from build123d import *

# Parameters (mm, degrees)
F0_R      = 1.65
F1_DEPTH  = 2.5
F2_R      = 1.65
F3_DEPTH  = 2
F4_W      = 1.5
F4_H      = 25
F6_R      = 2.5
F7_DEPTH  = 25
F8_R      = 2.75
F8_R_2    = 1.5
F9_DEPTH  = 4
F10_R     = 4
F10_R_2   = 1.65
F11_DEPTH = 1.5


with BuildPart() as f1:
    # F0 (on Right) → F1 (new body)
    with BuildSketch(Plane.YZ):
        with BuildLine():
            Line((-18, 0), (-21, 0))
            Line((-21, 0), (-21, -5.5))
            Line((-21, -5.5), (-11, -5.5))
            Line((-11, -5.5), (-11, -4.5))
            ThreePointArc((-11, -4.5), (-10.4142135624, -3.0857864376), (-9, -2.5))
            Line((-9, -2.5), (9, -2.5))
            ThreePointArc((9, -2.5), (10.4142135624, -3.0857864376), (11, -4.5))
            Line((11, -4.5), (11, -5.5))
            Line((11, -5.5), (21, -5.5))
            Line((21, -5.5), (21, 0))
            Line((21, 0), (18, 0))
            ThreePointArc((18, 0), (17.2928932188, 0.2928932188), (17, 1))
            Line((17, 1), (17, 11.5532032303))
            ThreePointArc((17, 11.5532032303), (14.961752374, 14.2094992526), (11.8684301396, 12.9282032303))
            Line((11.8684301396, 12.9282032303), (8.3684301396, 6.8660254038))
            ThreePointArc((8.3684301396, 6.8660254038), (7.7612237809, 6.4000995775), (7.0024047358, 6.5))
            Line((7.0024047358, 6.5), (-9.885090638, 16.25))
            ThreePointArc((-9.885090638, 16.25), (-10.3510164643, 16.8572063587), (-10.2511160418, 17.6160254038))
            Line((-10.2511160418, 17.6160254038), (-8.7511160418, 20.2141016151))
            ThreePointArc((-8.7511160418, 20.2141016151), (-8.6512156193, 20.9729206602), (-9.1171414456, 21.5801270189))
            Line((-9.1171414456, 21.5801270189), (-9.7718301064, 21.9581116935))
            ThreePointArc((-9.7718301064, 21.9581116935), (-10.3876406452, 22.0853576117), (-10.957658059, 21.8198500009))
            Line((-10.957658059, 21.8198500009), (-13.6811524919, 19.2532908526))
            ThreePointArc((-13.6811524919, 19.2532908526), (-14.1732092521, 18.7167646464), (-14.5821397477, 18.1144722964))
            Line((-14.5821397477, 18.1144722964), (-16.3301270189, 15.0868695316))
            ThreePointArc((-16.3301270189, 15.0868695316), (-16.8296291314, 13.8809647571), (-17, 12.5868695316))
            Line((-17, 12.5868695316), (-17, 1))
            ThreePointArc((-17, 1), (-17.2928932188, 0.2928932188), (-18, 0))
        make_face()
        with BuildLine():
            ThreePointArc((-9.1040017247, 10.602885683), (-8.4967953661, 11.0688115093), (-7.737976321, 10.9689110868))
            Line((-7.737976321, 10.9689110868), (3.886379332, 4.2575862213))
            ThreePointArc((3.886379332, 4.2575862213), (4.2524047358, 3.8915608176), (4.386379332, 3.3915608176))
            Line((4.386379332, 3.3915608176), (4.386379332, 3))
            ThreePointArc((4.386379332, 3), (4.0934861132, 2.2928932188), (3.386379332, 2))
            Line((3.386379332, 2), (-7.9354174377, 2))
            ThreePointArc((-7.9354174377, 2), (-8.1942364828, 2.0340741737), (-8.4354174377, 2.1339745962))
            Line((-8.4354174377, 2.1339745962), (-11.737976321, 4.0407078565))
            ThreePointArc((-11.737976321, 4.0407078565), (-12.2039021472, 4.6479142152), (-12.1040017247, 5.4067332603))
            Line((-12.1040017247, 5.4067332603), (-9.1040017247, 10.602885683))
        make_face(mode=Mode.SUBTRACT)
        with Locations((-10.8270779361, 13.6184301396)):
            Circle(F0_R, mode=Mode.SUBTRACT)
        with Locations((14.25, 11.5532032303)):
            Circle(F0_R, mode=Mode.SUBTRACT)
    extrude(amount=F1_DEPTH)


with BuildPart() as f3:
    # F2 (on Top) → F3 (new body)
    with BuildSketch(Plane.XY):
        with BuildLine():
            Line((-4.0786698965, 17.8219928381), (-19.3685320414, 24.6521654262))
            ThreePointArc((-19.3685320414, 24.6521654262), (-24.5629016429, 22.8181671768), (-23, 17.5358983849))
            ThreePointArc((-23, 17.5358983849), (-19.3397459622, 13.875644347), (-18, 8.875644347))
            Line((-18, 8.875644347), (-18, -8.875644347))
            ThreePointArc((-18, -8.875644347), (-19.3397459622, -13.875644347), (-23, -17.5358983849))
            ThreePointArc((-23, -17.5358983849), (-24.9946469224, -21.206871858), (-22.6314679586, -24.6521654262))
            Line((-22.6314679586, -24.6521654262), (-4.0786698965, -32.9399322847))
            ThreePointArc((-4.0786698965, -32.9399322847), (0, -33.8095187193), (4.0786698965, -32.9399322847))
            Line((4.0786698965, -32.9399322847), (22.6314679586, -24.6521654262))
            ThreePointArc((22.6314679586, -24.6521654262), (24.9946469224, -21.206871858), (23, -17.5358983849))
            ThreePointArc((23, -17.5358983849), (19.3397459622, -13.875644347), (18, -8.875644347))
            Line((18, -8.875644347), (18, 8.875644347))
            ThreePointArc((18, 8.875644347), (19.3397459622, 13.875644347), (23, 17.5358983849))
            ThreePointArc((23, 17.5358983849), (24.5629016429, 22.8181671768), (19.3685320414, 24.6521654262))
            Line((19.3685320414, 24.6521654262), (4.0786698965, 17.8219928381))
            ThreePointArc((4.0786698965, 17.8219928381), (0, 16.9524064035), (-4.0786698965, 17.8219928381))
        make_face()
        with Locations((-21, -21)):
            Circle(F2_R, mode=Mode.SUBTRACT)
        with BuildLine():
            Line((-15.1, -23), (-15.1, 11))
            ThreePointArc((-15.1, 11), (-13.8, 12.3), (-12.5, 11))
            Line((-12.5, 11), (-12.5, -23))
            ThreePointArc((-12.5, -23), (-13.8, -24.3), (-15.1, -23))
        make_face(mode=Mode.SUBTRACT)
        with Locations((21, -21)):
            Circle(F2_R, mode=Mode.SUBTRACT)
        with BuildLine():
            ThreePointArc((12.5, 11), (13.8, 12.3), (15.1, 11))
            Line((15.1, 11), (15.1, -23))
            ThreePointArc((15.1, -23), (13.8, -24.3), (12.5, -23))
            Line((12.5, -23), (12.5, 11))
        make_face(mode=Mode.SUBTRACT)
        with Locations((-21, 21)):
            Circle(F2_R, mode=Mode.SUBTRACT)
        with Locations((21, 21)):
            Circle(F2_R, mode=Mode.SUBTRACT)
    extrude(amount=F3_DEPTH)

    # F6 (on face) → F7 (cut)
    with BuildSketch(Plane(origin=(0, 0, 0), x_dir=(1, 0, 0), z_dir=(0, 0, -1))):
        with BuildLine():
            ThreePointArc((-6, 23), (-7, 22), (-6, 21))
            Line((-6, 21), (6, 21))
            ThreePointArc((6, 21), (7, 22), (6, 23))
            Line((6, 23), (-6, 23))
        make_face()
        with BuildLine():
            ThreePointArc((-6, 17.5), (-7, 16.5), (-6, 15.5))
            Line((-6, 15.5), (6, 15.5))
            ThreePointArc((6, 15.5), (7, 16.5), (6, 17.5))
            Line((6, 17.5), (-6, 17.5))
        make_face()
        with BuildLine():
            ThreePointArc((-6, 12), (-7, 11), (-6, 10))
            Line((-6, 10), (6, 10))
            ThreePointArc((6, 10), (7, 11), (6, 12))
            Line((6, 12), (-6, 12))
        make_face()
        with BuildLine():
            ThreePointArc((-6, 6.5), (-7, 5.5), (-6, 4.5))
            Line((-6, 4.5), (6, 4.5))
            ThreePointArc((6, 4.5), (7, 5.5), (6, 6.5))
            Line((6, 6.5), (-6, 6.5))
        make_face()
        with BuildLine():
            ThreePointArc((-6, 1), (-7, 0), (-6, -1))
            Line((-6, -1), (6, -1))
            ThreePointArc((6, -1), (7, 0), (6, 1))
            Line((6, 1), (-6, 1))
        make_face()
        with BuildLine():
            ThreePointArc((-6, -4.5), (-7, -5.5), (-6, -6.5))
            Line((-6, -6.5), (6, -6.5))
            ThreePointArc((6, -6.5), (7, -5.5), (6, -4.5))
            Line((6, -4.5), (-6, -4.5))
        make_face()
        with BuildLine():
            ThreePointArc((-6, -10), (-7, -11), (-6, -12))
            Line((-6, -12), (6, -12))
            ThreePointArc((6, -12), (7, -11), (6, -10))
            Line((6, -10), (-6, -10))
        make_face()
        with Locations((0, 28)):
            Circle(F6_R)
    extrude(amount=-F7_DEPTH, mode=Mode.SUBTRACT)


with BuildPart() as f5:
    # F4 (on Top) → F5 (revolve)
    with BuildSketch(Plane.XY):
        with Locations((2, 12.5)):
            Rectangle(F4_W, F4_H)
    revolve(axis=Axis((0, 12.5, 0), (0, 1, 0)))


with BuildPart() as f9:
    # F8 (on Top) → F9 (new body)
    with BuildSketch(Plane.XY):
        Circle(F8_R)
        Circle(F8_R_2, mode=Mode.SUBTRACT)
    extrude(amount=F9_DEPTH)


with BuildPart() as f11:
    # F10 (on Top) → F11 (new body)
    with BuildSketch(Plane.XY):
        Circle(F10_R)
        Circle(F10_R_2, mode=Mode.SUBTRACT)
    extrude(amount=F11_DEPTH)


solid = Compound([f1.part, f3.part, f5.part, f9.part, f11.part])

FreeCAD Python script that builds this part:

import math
import FreeCAD as App
import Part
import Sketcher
from FreeCAD import Vector
Q = App.Units.Quantity


def add_polygon(sketch, points):
    """Adds a closed chain of lines whose ends are joined by coincident constraints."""
    first, n = sketch.GeometryCount, len(points)
    for a, b in zip(points, points[1:] + points[:1]):
        sketch.addGeometry(Part.LineSegment(App.Vector(*a, 0), App.Vector(*b, 0)), False)
    for i in range(n):
        sketch.addConstraint(Sketcher.Constraint("Coincident", first + i, 2, first + (i + 1) % n, 1))

doc = App.newDocument("Part")
body = doc.addObject("PartDesign::Body", "Body")

# Sketch on YZ plane
sketch1 = doc.addObject("Sketcher::SketchObject", "Sketch")
body.addObject(sketch1)
sketch1.AttachmentSupport = (doc.YZ_Plane, [""])
sketch1.MapMode = "FlatFace"
sketch1.addGeometry(Part.LineSegment(Vector(-18, 0, 0), Vector(-21, 0, 0)), False)
sketch1.addGeometry(Part.LineSegment(Vector(-21, 0, 0), Vector(-21, -5.5, 0)), False)
sketch1.addGeometry(Part.LineSegment(Vector(-21, -5.5, 0), Vector(-11, -5.5, 0)), False)
sketch1.addGeometry(Part.LineSegment(Vector(-11, -5.5, 0), Vector(-11, -4.5, 0)), False)
sketch1.addGeometry(Part.ArcOfCircle(Part.Circle(Vector(-9, -4.5, 0), Vector(0, 0, 1), 2), math.radians(90), math.radians(180)), False)
sketch1.addGeometry(Part.LineSegment(Vector(-9, -2.5, 0), Vector(9, -2.5, 0)), False)
sketch1.addGeometry(Part.ArcOfCircle(Part.Circle(Vector(9, -4.5, 0), Vector(0, 0, 1), 2), math.radians(0), math.radians(90)), False)
sketch1.addGeometry(Part.LineSegment(Vector(11, -4.5, 0), Vector(11, -5.5, 0)), False)
sketch1.addGeometry(Part.LineSegment(Vector(11, -5.5, 0), Vector(21, -5.5, 0)), False)
sketch1.addGeometry(Part.LineSegment(Vector(21, -5.5, 0), Vector(21, 0, 0)), False)
sketch1.addGeometry(Part.LineSegment(Vector(21, 0, 0), Vector(18, 0, 0)), False)
sketch1.addGeometry(Part.ArcOfCircle(Part.Circle(Vector(18, 1, 0), Vector(0, 0, 1), 1), math.radians(180), math.radians(270)), False)
sketch1.addGeometry(Part.LineSegment(Vector(17, 1, 0), Vector(17, 11.553203, 0)), False)
sketch1.addGeometry(Part.ArcOfCircle(Part.Circle(Vector(14.25, 11.553203, 0), Vector(0, 0, 1), 2.75), math.radians(0), math.radians(150)), False)
sketch1.addGeometry(Part.LineSegment(Vector(11.86843, 12.928203, 0), Vector(8.36843, 6.866025, 0)), False)
sketch1.addGeometry(Part.ArcOfCircle(Part.Circle(Vector(7.502405, 7.366025, 0), Vector(0, 0, 1), 1), math.radians(-120), math.radians(-30)), False)
sketch1.addGeometry(Part.LineSegment(Vector(7.002405, 6.5, 0), Vector(-9.885091, 16.25, 0)), False)
sketch1.addGeometry(Part.ArcOfCircle(Part.Circle(Vector(-9.385091, 17.116025, 0), Vector(0, 0, 1), 1), math.radians(150), math.radians(240)), False)
sketch1.addGeometry(Part.LineSegment(Vector(-10.251116, 17.616025, 0), Vector(-8.751116, 20.214102, 0)), False)
sketch1.addGeometry(Part.ArcOfCircle(Part.Circle(Vector(-9.617141, 20.714102, 0), Vector(0, 0, 1), 1), math.radians(-30), math.radians(60)), False)
sketch1.addGeometry(Part.LineSegment(Vector(-9.117141, 21.580127, 0), Vector(-9.77183, 21.958112, 0)), False)
sketch1.addGeometry(Part.ArcOfCircle(Part.Circle(Vector(-10.27183, 21.092086, 0), Vector(0, 0, 1), 1), math.radians(60), math.radians(133.300756)), False)
sketch1.addGeometry(Part.LineSegment(Vector(-10.957658, 21.81985, 0), Vector(-13.681152, 19.253291, 0)), False)
sketch1.addGeometry(Part.ArcOfCircle(Part.Circle(Vector(-10.252013, 15.614472, 0), Vector(0, 0, 1), 5), math.radians(133.300756), math.radians(150)), False)
sketch1.addGeometry(Part.LineSegment(Vector(-14.58214, 18.114472, 0), Vector(-16.330127, 15.08687, 0)), False)
sketch1.addGeometry(Part.ArcOfCircle(Part.Circle(Vector(-12, 12.58687, 0), Vector(0, 0, 1), 5), math.radians(150), math.radians(180)), False)
sketch1.addGeometry(Part.LineSegment(Vector(-17, 12.58687, 0), Vector(-17, 1, 0)), False)
sketch1.addGeometry(Part.ArcOfCircle(Part.Circle(Vector(-18, 1, 0), Vector(0, 0, 1), 1), math.radians(-90), math.radians(0)), False)
sketch1.addGeometry(Part.LineSegment(Vector(-12.104002, 5.406733, 0), Vector(-9.104002, 10.602886, 0)), False)
sketch1.addGeometry(Part.ArcOfCircle(Part.Circle(Vector(-8.237976, 10.102886, 0), Vector(0, 0, 1), 1), math.radians(60), math.radians(150)), False)
sketch1.addGeometry(Part.LineSegment(Vector(-7.737976, 10.968911, 0), Vector(3.886379, 4.257586, 0)), False)
sketch1.addGeometry(Part.ArcOfCircle(Part.Circle(Vector(3.386379, 3.391561, 0), Vector(0, 0, 1), 1), math.radians(0), math.radians(60)), False)
sketch1.addGeometry(Part.LineSegment(Vector(4.386379, 3.391561, 0), Vector(4.386379, 3, 0)), False)
sketch1.addGeometry(Part.ArcOfCircle(Part.Circle(Vector(3.386379, 3, 0), Vector(0, 0, 1), 1), math.radians(-90), math.radians(0)), False)
sketch1.addGeometry(Part.LineSegment(Vector(3.386379, 2, 0), Vector(-7.935417, 2, 0)), False)
sketch1.addGeometry(Part.ArcOfCircle(Part.Circle(Vector(-7.935417, 3, 0), Vector(0, 0, 1), 1), math.radians(-120), math.radians(-90)), False)
sketch1.addGeometry(Part.LineSegment(Vector(-8.435417, 2.133975, 0), Vector(-11.737976, 4.040708, 0)), False)
sketch1.addGeometry(Part.ArcOfCircle(Part.Circle(Vector(-11.237976, 4.906733, 0), Vector(0, 0, 1), 1), math.radians(150), math.radians(240)), False)
sketch1.addGeometry(Part.Circle(Vector(-10.827078, 13.61843, 0), Vector(0, 0, 1), 1.65), False)
sketch1.addGeometry(Part.Circle(Vector(14.25, 11.553203, 0), Vector(0, 0, 1), 1.65), False)
sketch1.addConstraint(Sketcher.Constraint("Coincident", 0, 2, 1, 1))
sketch1.addConstraint(Sketcher.Constraint("Coincident", 1, 2, 2, 1))
sketch1.addConstraint(Sketcher.Constraint("Coincident", 2, 2, 3, 1))
sketch1.addConstraint(Sketcher.Constraint("Tangent", 3, 2, 4, 2))
sketch1.addConstraint(Sketcher.Constraint("Tangent", 4, 1, 5, 1))
sketch1.addConstraint(Sketcher.Constraint("Tangent", 5, 2, 6, 2))
sketch1.addConstraint(Sketcher.Constraint("Tangent", 6, 1, 7, 1))
sketch1.addConstraint(Sketcher.Constraint("Coincident", 7, 2, 8, 1))
sketch1.addConstraint(Sketcher.Constraint("Coincident", 8, 2, 9, 1))
sketch1.addConstraint(Sketcher.Constraint("Coincident", 9, 2, 10, 1))
sketch1.addConstraint(Sketcher.Constraint("Tangent", 10, 2, 11, 2))
sketch1.addConstraint(Sketcher.Constraint("Tangent", 11, 1, 12, 1))
sketch1.addConstraint(Sketcher.Constraint("Tangent", 12, 2, 13, 1))
sketch1.addConstraint(Sketcher.Constraint("Tangent", 13, 2, 14, 1))
sketch1.addConstraint(Sketcher.Constraint("Tangent", 14, 2, 15, 2))
sketch1.addConstraint(Sketcher.Constraint("Tangent", 15, 1, 16, 1))
sketch1.addConstraint(Sketcher.Constraint("Tangent", 16, 2, 17, 2))
sketch1.addConstraint(Sketcher.Constraint("Tangent", 17, 1, 18, 1))
sketch1.addConstraint(Sketcher.Constraint("Tangent", 18, 2, 19, 1))
sketch1.addConstraint(Sketcher.Constraint("Tangent", 19, 2, 20, 1))
sketch1.addConstraint(Sketcher.Constraint("Tangent", 20, 2, 21, 1))
sketch1.addConstraint(Sketcher.Constraint("Tangent", 21, 2, 22, 1))
sketch1.addConstraint(Sketcher.Constraint("Tangent", 22, 2, 23, 1))
sketch1.addConstraint(Sketcher.Constraint("Tangent", 23, 2, 24, 1))
sketch1.addConstraint(Sketcher.Constraint("Tangent", 24, 2, 25, 1))
sketch1.addConstraint(Sketcher.Constraint("Tangent", 25, 2, 26, 1))
sketch1.addConstraint(Sketcher.Constraint("Tangent", 26, 2, 27, 2))
sketch1.addConstraint(Sketcher.Constraint("Tangent", 27, 1, 0, 1))
sketch1.addConstraint(Sketcher.Constraint("Tangent", 28, 2, 29, 2))
sketch1.addConstraint(Sketcher.Constraint("Tangent", 29, 1, 30, 1))
sketch1.addConstraint(Sketcher.Constraint("Tangent", 30, 2, 31, 2))
sketch1.addConstraint(Sketcher.Constraint("Tangent", 31, 1, 32, 1))
sketch1.addConstraint(Sketcher.Constraint("Tangent", 32, 2, 33, 2))
sketch1.addConstraint(Sketcher.Constraint("Tangent", 33, 1, 34, 1))
sketch1.addConstraint(Sketcher.Constraint("Tangent", 34, 2, 35, 2))
sketch1.addConstraint(Sketcher.Constraint("Tangent", 35, 1, 36, 1))
sketch1.addConstraint(Sketcher.Constraint("Tangent", 36, 2, 37, 2))
sketch1.addConstraint(Sketcher.Constraint("Tangent", 37, 1, 28, 1))
sketch1.addConstraint(Sketcher.Constraint("Horizontal", 0))
sketch1.addConstraint(Sketcher.Constraint("Vertical", 1))
sketch1.addConstraint(Sketcher.Constraint("Horizontal", 2))
sketch1.addConstraint(Sketcher.Constraint("Vertical", 3))
sketch1.addConstraint(Sketcher.Constraint("Horizontal", 5))
sketch1.addConstraint(Sketcher.Constraint("Vertical", 7))
sketch1.addConstraint(Sketcher.Constraint("Horizontal", 8))
sketch1.addConstraint(Sketcher.Constraint("Vertical", 9))
sketch1.addConstraint(Sketcher.Constraint("Horizontal", 10))
sketch1.addConstraint(Sketcher.Constraint("Vertical", 12))
sketch1.addConstraint(Sketcher.Constraint("Vertical", 26))
sketch1.addConstraint(Sketcher.Constraint("Vertical", 32))
sketch1.addConstraint(Sketcher.Constraint("Horizontal", 34))
sketch1.addConstraint(Sketcher.Constraint("Coincident", 39, 3, 13, 3))
sketch1.addConstraint(Sketcher.Constraint("Equal", 4, 6))
sketch1.addConstraint(Sketcher.Constraint("Equal", 11, 15))
sketch1.addConstraint(Sketcher.Constraint("Equal", 15, 17))
sketch1.addConstraint(Sketcher.Constraint("Equal", 17, 19))
sketch1.addConstraint(Sketcher.Constraint("Equal", 19, 21))
sketch1.addConstraint(Sketcher.Constraint("Equal", 23, 25))
sketch1.addConstraint(Sketcher.Constraint("Equal", 21, 27))
sketch1.addConstraint(Sketcher.Constraint("Equal", 27, 29))
sketch1.addConstraint(Sketcher.Constraint("Equal", 29, 31))
sketch1.addConstraint(Sketcher.Constraint("Equal", 31, 33))
sketch1.addConstraint(Sketcher.Constraint("Equal", 33, 35))
sketch1.addConstraint(Sketcher.Constraint("Equal", 35, 37))
sketch1.addConstraint(Sketcher.Constraint("Equal", 38, 39))
sketch1.addConstraint(Sketcher.Constraint("Symmetric", 0, 2, 9, 2, -1, 1))
sketch1.addConstraint(Sketcher.Constraint("Symmetric", 11, 3, 27, 3, -2))
sketch1.addConstraint(Sketcher.Constraint("Symmetric", 2, 2, 7, 2, -2))
sketch1.addConstraint(Sketcher.Constraint("Perpendicular", 14, 16))
sketch1.addConstraint(Sketcher.Constraint("Perpendicular", 16, 18))
sketch1.addConstraint(Sketcher.Constraint("Perpendicular", 18, 20))
sketch1.addConstraint(Sketcher.Constraint("Perpendicular", 20, 24))
sketch1.addConstraint(Sketcher.Constraint("Parallel", 24, 28))
sketch1.addConstraint(Sketcher.Constraint("Perpendicular", 28, 30))
sketch1.addConstraint(Sketcher.Constraint("Parallel", 30, 36))
sketch1.addConstraint(Sketcher.Constraint("Radius", 4, 2.0))
sketch1.addConstraint(Sketcher.Constraint("Radius", 11, 1.0))
sketch1.addConstraint(Sketcher.Constraint("Radius", 23, 5.0))
sketch1.addConstraint(Sketcher.Constraint("Diameter", 38, 3.3))
sketch1.addConstraint(Sketcher.Constraint("DistanceX", 0, 2, 0, 1, 3.0))
sketch1.addConstraint(Sketcher.Constraint("DistanceX", 2, 1, 2, 2, 10.0))
sketch1.addConstraint(Sketcher.Constraint("DistanceX", 5, 1, 5, 2, 18.0))
sketch1.addConstraint(Sketcher.Constraint("DistanceY", 3, 1, 3, 2, 1.0))
sketch1.addConstraint(Sketcher.Constraint("Angle", 14, Q("-120 deg")))
sketch1.addConstraint(Sketcher.Constraint("Radius", 13, 2.75))
sketch1.addConstraint(Sketcher.Constraint("Distance", 14, 7.0))
sketch1.addConstraint(Sketcher.Constraint("Distance", 18, 3.0))
sketch1.addConstraint(Sketcher.Constraint("Distance", 28, 6.0))
sketch1.addConstraint(Sketcher.Constraint("DistanceY", 1, 2, 1, 1, 5.5))
sketch1.addConstraint(Sketcher.Constraint("DistanceY", -1, 1, 33, 3, 3.0))
sketch1.addConstraint(Sketcher.Constraint("Distance", 16, 19.5))
sketch1.addConstraint(Sketcher.Constraint("DistanceY", -1, 1, 15, 1, 6.5))
sketch1.addConstraint(Sketcher.Constraint("DistanceX", 28, 2, -1, 1, 9.104002))
sketch1.addConstraint(Sketcher.Constraint("DistanceY", 26, 2, 26, 1, 11.58687))
sketch1.addConstraint(Sketcher.Constraint("DistanceY", 32, 2, 32, 1, 0.391561))
sketch1.addConstraint(Sketcher.Constraint("DistanceY", 29, 3, 21, 3, 10.989201))
sketch1.addConstraint(Sketcher.Constraint("DistanceX", 38, 3, 29, 3, 2.589102))
sketch1.addConstraint(Sketcher.Constraint("Distance", 20, 0.755969))
sketch1.addConstraint(Sketcher.Constraint("Distance", 22, 3.742278))
sketch1.addConstraint(Sketcher.Constraint("DistanceY", -1, 1, 38, 3, 13.61843))
pad1 = doc.addObject("PartDesign::Pad", "Pad")
body.addObject(pad1)
pad1.Profile = sketch1
pad1.Length = 2.5
body2 = doc.addObject("PartDesign::Body", "Body001")

# Sketch on XY plane
sketch2 = doc.addObject("Sketcher::SketchObject", "Sketch001")
body2.addObject(sketch2)
sketch2.AttachmentSupport = (doc.getObject("XY_Plane001"), [""])
sketch2.MapMode = "FlatFace"
sketch2.addGeometry(Part.LineSegment(Vector(-4.07867, 17.821993, 0), Vector(-19.368532, 24.652165, 0)), False)
sketch2.addGeometry(Part.ArcOfCircle(Part.Circle(Vector(-21, 21, 0), Vector(0, 0, 1), 4), math.radians(65.929087), math.radians(240)), False)
sketch2.addGeometry(Part.ArcOfCircle(Part.Circle(Vector(-28, 8.875644, 0), Vector(0, 0, 1), 10), math.radians(0), math.radians(60)), False)
sketch2.addGeometry(Part.LineSegment(Vector(-18, 8.875644, 0), Vector(-18, -8.875644, 0)), False)
sketch2.addGeometry(Part.ArcOfCircle(Part.Circle(Vector(-28, -8.875644, 0), Vector(0, 0, 1), 10), math.radians(-60), math.radians(0)), False)
sketch2.addGeometry(Part.ArcOfCircle(Part.Circle(Vector(-21, -21, 0), Vector(0, 0, 1), 4), math.radians(120), math.radians(245.929087)), False)
sketch2.addGeometry(Part.LineSegment(Vector(-22.631468, -24.652165, 0), Vector(-4.07867, -32.939932, 0)), False)
sketch2.addGeometry(Part.ArcOfCircle(Part.Circle(Vector(0, -23.809519, 0), Vector(0, 0, 1), 10), math.radians(-114.070913), math.radians(-65.929087)), False)
sketch2.addGeometry(Part.LineSegment(Vector(4.07867, -32.939932, 0), Vector(22.631468, -24.652165, 0)), False)
sketch2.addGeometry(Part.ArcOfCircle(Part.Circle(Vector(21, -21, 0), Vector(0, 0, 1), 4), math.radians(-65.929087), math.radians(60)), False)
sketch2.addGeometry(Part.ArcOfCircle(Part.Circle(Vector(28, -8.875644, 0), Vector(0, 0, 1), 10), math.radians(180), math.radians(240)), False)
sketch2.addGeometry(Part.LineSegment(Vector(18, -8.875644, 0), Vector(18, 8.875644, 0)), False)
sketch2.addGeometry(Part.ArcOfCircle(Part.Circle(Vector(28, 8.875644, 0), Vector(0, 0, 1), 10), math.radians(120), math.radians(180)), False)
sketch2.addGeometry(Part.ArcOfCircle(Part.Circle(Vector(21, 21, 0), Vector(0, 0, 1), 4), math.radians(-60), math.radians(114.070913)), False)
sketch2.addGeometry(Part.LineSegment(Vector(19.368532, 24.652165, 0), Vector(4.07867, 17.821993, 0)), False)
sketch2.addGeometry(Part.ArcOfCircle(Part.Circle(Vector(0, 26.952406, 0), Vector(0, 0, 1), 10), math.radians(-114.070913), math.radians(-65.929087)), False)
sketch2.addGeometry(Part.Circle(Vector(-21, -21, 0), Vector(0, 0, 1), 1.65), False)
sketch2.addGeometry(Part.ArcOfCircle(Part.Circle(Vector(-13.8, -23, 0), Vector(0, 0, 1), 1.3), math.radians(180), math.radians(360)), False)
sketch2.addGeometry(Part.LineSegment(Vector(-15.1, -23, 0), Vector(-15.1, 11, 0)), False)
sketch2.addGeometry(Part.ArcOfCircle(Part.Circle(Vector(-13.8, 11, 0), Vector(0, 0, 1), 1.3), math.radians(0), math.radians(180)), False)
sketch2.addGeometry(Part.LineSegment(Vector(-12.5, 11, 0), Vector(-12.5, -23, 0)), False)
sketch2.addGeometry(Part.Circle(Vector(21, -21, 0), Vector(0, 0, 1), 1.65), False)
sketch2.addGeometry(Part.LineSegment(Vector(12.5, -23, 0), Vector(12.5, 11, 0)), False)
sketch2.addGeometry(Part.ArcOfCircle(Part.Circle(Vector(13.8, 11, 0), Vector(0, 0, 1), 1.3), math.radians(0), math.radians(180)), False)
sketch2.addGeometry(Part.LineSegment(Vector(15.1, 11, 0), Vector(15.1, -23, 0)), False)
sketch2.addGeometry(Part.ArcOfCircle(Part.Circle(Vector(13.8, -23, 0), Vector(0, 0, 1), 1.3), math.radians(180), math.radians(360)), False)
sketch2.addGeometry(Part.Circle(Vector(-21, 21, 0), Vector(0, 0, 1), 1.65), False)
sketch2.addGeometry(Part.Circle(Vector(21, 21, 0), Vector(0, 0, 1), 1.65), False)
sketch2.addConstraint(Sketcher.Constraint("Tangent", 0, 2, 1, 1))
sketch2.addConstraint(Sketcher.Constraint("Tangent", 1, 2, 2, 2))
sketch2.addConstraint(Sketcher.Constraint("Tangent", 2, 1, 3, 1))
sketch2.addConstraint(Sketcher.Constraint("Tangent", 3, 2, 4, 2))
sketch2.addConstraint(Sketcher.Constraint("Tangent", 4, 1, 5, 1))
sketch2.addConstraint(Sketcher.Constraint("Tangent", 5, 2, 6, 1))
sketch2.addConstraint(Sketcher.Constraint("Tangent", 6, 2, 7, 1))
sketch2.addConstraint(Sketcher.Constraint("Tangent", 7, 2, 8, 1))
sketch2.addConstraint(Sketcher.Constraint("Tangent", 8, 2, 9, 1))
sketch2.addConstraint(Sketcher.Constraint("Tangent", 9, 2, 10, 2))
sketch2.addConstraint(Sketcher.Constraint("Tangent", 10, 1, 11, 1))
sketch2.addConstraint(Sketcher.Constraint("Tangent", 11, 2, 12, 2))
sketch2.addConstraint(Sketcher.Constraint("Tangent", 12, 1, 13, 1))
sketch2.addConstraint(Sketcher.Constraint("Tangent", 13, 2, 14, 1))
sketch2.addConstraint(Sketcher.Constraint("Tangent", 14, 2, 15, 2))
sketch2.addConstraint(Sketcher.Constraint("Tangent", 15, 1, 0, 1))
sketch2.addConstraint(Sketcher.Constraint("Tangent", 17, 1, 18, 1))
sketch2.addConstraint(Sketcher.Constraint("Tangent", 18, 2, 19, 2))
sketch2.addConstraint(Sketcher.Constraint("Tangent", 19, 1, 20, 1))
sketch2.addConstraint(Sketcher.Constraint("Tangent", 20, 2, 17, 2))
sketch2.addConstraint(Sketcher.Constraint("Tangent", 22, 2, 23, 2))
sketch2.addConstraint(Sketcher.Constraint("Tangent", 23, 1, 24, 1))
sketch2.addConstraint(Sketcher.Constraint("Tangent", 24, 2, 25, 2))
sketch2.addConstraint(Sketcher.Constraint("Tangent", 25, 1, 22, 1))
sketch2.addConstraint(Sketcher.Constraint("Vertical", 3))
sketch2.addConstraint(Sketcher.Constraint("Vertical", 11))
sketch2.addConstraint(Sketcher.Constraint("Vertical", 18))
sketch2.addConstraint(Sketcher.Constraint("Vertical", 20))
sketch2.addConstraint(Sketcher.Constraint("Vertical", 22))
sketch2.addConstraint(Sketcher.Constraint("Vertical", 24))
sketch2.addConstraint(Sketcher.Constraint("Coincident", 16, 3, 5, 3))
sketch2.addConstraint(Sketcher.Constraint("Coincident", 21, 3, 9, 3))
sketch2.addConstraint(Sketcher.Constraint("Coincident", 26, 3, 1, 3))
sketch2.addConstraint(Sketcher.Constraint("Coincident", 27, 3, 13, 3))
sketch2.addConstraint(Sketcher.Constraint("Equal", 2, 4))
sketch2.addConstraint(Sketcher.Constraint("Equal", 1, 5))
sketch2.addConstraint(Sketcher.Constraint("Equal", 4, 7))
sketch2.addConstraint(Sketcher.Constraint("Equal", 5, 9))
sketch2.addConstraint(Sketcher.Constraint("Equal", 7, 10))
sketch2.addConstraint(Sketcher.Constraint("Equal", 10, 12))
sketch2.addConstraint(Sketcher.Constraint("Equal", 9, 13))
sketch2.addConstraint(Sketcher.Constraint("Equal", 12, 15))
sketch2.addConstraint(Sketcher.Constraint("Equal", 16, 21))
sketch2.addConstraint(Sketcher.Constraint("Equal", 19, 23))
sketch2.addConstraint(Sketcher.Constraint("Equal", 21, 26))
sketch2.addConstraint(Sketcher.Constraint("Equal", 26, 27))
sketch2.addConstraint(Sketcher.Constraint("Symmetric", 1, 3, 9, 3, -1, 1))
sketch2.addConstraint(Sketcher.Constraint("Symmetric", 4, 3, 12, 3, -1, 1))
sketch2.addConstraint(Sketcher.Constraint("Symmetric", 5, 3, 9, 3, -2))
sketch2.addConstraint(Sketcher.Constraint("Symmetric", 19, 3, 23, 3, -2))
sketch2.addConstraint(Sketcher.Constraint("Symmetric", 0, 2, 13, 2, -2))
sketch2.addConstraint(Sketcher.Constraint("PointOnObject", 7, 3, -2))
sketch2.addConstraint(Sketcher.Constraint("Parallel", 0, 6))
sketch2.addConstraint(Sketcher.Constraint("Horizontal", 17, 3, 25, 3))
sketch2.addConstraint(Sketcher.Constraint("Radius", 1, 4.0))
sketch2.addConstraint(Sketcher.Constraint("Radius", 2, 10.0))
sketch2.addConstraint(Sketcher.Constraint("Diameter", 16, 3.3))
sketch2.addConstraint(Sketcher.Constraint("Radius", 17, 1.3))
sketch2.addConstraint(Sketcher.Constraint("DistanceY", 18, 1, 18, 2, 34.0))
sketch2.addConstraint(Sketcher.Constraint("DistanceX", 1, 3, -1, 1, 21.0))
sketch2.addConstraint(Sketcher.Constraint("DistanceY", -1, 1, 1, 3, 21.0))
sketch2.addConstraint(Sketcher.Constraint("DistanceX", 2, 3, -1, 1, 28.0))
sketch2.addConstraint(Sketcher.Constraint("DistanceY", 17, 3, -1, 1, 23.0))
sketch2.addConstraint(Sketcher.Constraint("DistanceX", 17, 3, -1, 1, 13.8))
sketch2.addConstraint(Sketcher.Constraint("DistanceX", 5, 2, 6, 2, 18.552798))
pad2 = doc.addObject("PartDesign::Pad", "Pad001")
body2.addObject(pad2)
pad2.Profile = sketch2
pad2.Length = 2

# Sketch on XY plane
sketch3 = doc.addObject("Sketcher::SketchObject", "Sketch002")
body2.addObject(sketch3)
sketch3.AttachmentSupport = (doc.getObject("XY_Plane001"), [""])
sketch3.MapMode = "FlatFace"
sketch3.addGeometry(Part.ArcOfCircle(Part.Circle(Vector(-6, -22, 0), Vector(0, 0, 1), 1), math.radians(90), math.radians(270)), False)
sketch3.addGeometry(Part.LineSegment(Vector(-6, -21, 0), Vector(6, -21, 0)), False)
sketch3.addGeometry(Part.ArcOfCircle(Part.Circle(Vector(6, -22, 0), Vector(0, 0, 1), 1), math.radians(-90), math.radians(90)), False)
sketch3.addGeometry(Part.LineSegment(Vector(6, -23, 0), Vector(-6, -23, 0)), False)
sketch3.addGeometry(Part.ArcOfCircle(Part.Circle(Vector(-6, -16.5, 0), Vector(0, 0, 1), 1), math.radians(90), math.radians(270)), False)
sketch3.addGeometry(Part.LineSegment(Vector(-6, -15.5, 0), Vector(6, -15.5, 0)), False)
sketch3.addGeometry(Part.ArcOfCircle(Part.Circle(Vector(6, -16.5, 0), Vector(0, 0, 1), 1), math.radians(-90), math.radians(90)), False)
sketch3.addGeometry(Part.LineSegment(Vector(6, -17.5, 0), Vector(-6, -17.5, 0)), False)
sketch3.addGeometry(Part.ArcOfCircle(Part.Circle(Vector(-6, -11, 0), Vector(0, 0, 1), 1), math.radians(90), math.radians(270)), False)
sketch3.addGeometry(Part.LineSegment(Vector(-6, -10, 0), Vector(6, -10, 0)), False)
sketch3.addGeometry(Part.ArcOfCircle(Part.Circle(Vector(6, -11, 0), Vector(0, 0, 1), 1), math.radians(-90), math.radians(90)), False)
sketch3.addGeometry(Part.LineSegment(Vector(6, -12, 0), Vector(-6, -12, 0)), False)
sketch3.addGeometry(Part.ArcOfCircle(Part.Circle(Vector(-6, -5.5, 0), Vector(0, 0, 1), 1), math.radians(90), math.radians(270)), False)
sketch3.addGeometry(Part.LineSegment(Vector(-6, -4.5, 0), Vector(6, -4.5, 0)), False)
sketch3.addGeometry(Part.ArcOfCircle(Part.Circle(Vector(6, -5.5, 0), Vector(0, 0, 1), 1), math.radians(-90), math.radians(90)), False)
sketch3.addGeometry(Part.LineSegment(Vector(6, -6.5, 0), Vector(-6, -6.5, 0)), False)
sketch3.addGeometry(Part.ArcOfCircle(Part.Circle(Vector(-6, 0, 0), Vector(0, 0, 1), 1), math.radians(90), math.radians(270)), False)
sketch3.addGeometry(Part.LineSegment(Vector(-6, 1, 0), Vector(6, 1, 0)), False)
sketch3.addGeometry(Part.ArcOfCircle(Part.Circle(Vector(6, 0, 0), Vector(0, 0, 1), 1), math.radians(-90), math.radians(90)), False)
sketch3.addGeometry(Part.LineSegment(Vector(6, -1, 0), Vector(-6, -1, 0)), False)
sketch3.addGeometry(Part.ArcOfCircle(Part.Circle(Vector(-6, 5.5, 0), Vector(0, 0, 1), 1), math.radians(90), math.radians(270)), False)
sketch3.addGeometry(Part.LineSegment(Vector(-6, 6.5, 0), Vector(6, 6.5, 0)), False)
sketch3.addGeometry(Part.ArcOfCircle(Part.Circle(Vector(6, 5.5, 0), Vector(0, 0, 1), 1), math.radians(-90), math.radians(90)), False)
sketch3.addGeometry(Part.LineSegment(Vector(6, 4.5, 0), Vector(-6, 4.5, 0)), False)
sketch3.addGeometry(Part.ArcOfCircle(Part.Circle(Vector(-6, 11, 0), Vector(0, 0, 1), 1), math.radians(90), math.radians(270)), False)
sketch3.addGeometry(Part.LineSegment(Vector(-6, 12, 0), Vector(6, 12, 0)), False)
sketch3.addGeometry(Part.ArcOfCircle(Part.Circle(Vector(6, 11, 0), Vector(0, 0, 1), 1), math.radians(-90), math.radians(90)), False)
sketch3.addGeometry(Part.LineSegment(Vector(6, 10, 0), Vector(-6, 10, 0)), False)
sketch3.addGeometry(Part.Circle(Vector(0, -28, 0), Vector(0, 0, 1), 2.5), False)
sketch3.addConstraint(Sketcher.Constraint("Tangent", 0, 1, 1, 1))
sketch3.addConstraint(Sketcher.Constraint("Tangent", 1, 2, 2, 2))
sketch3.addConstraint(Sketcher.Constraint("Tangent", 2, 1, 3, 1))
sketch3.addConstraint(Sketcher.Constraint("Tangent", 3, 2, 0, 2))
sketch3.addConstraint(Sketcher.Constraint("Tangent", 4, 1, 5, 1))
sketch3.addConstraint(Sketcher.Constraint("Tangent", 5, 2, 6, 2))
sketch3.addConstraint(Sketcher.Constraint("Tangent", 6, 1, 7, 1))
sketch3.addConstraint(Sketcher.Constraint("Tangent", 7, 2, 4, 2))
sketch3.addConstraint(Sketcher.Constraint("Tangent", 8, 1, 9, 1))
sketch3.addConstraint(Sketcher.Constraint("Tangent", 9, 2, 10, 2))
sketch3.addConstraint(Sketcher.Constraint("Tangent", 10, 1, 11, 1))
sketch3.addConstraint(Sketcher.Constraint("Tangent", 11, 2, 8, 2))
sketch3.addConstraint(Sketcher.Constraint("Tangent", 12, 1, 13, 1))
sketch3.addConstraint(Sketcher.Constraint("Tangent", 13, 2, 14, 2))
sketch3.addConstraint(Sketcher.Constraint("Tangent", 14, 1, 15, 1))
sketch3.addConstraint(Sketcher.Constraint("Tangent", 15, 2, 12, 2))
sketch3.addConstraint(Sketcher.Constraint("Tangent", 16, 1, 17, 1))
sketch3.addConstraint(Sketcher.Constraint("Tangent", 17, 2, 18, 2))
sketch3.addConstraint(Sketcher.Constraint("Tangent", 18, 1, 19, 1))
sketch3.addConstraint(Sketcher.Constraint("Tangent", 19, 2, 16, 2))
sketch3.addConstraint(Sketcher.Constraint("Tangent", 20, 1, 21, 1))
sketch3.addConstraint(Sketcher.Constraint("Tangent", 21, 2, 22, 2))
sketch3.addConstraint(Sketcher.Constraint("Tangent", 22, 1, 23, 1))
sketch3.addConstraint(Sketcher.Constraint("Tangent", 23, 2, 20, 2))
sketch3.addConstraint(Sketcher.Constraint("Tangent", 24, 1, 25, 1))
sketch3.addConstraint(Sketcher.Constraint("Tangent", 25, 2, 26, 2))
sketch3.addConstraint(Sketcher.Constraint("Tangent", 26, 1, 27, 1))
sketch3.addConstraint(Sketcher.Constraint("Tangent", 27, 2, 24, 2))
sketch3.addConstraint(Sketcher.Constraint("Horizontal", 1))
sketch3.addConstraint(Sketcher.Constraint("Horizontal", 3))
sketch3.addConstraint(Sketcher.Constraint("Horizontal", 5))
sketch3.addConstraint(Sketcher.Constraint("Horizontal", 7))
sketch3.addConstraint(Sketcher.Constraint("Horizontal", 9))
sketch3.addConstraint(Sketcher.Constraint("Horizontal", 11))
sketch3.addConstraint(Sketcher.Constraint("Horizontal", 13))
sketch3.addConstraint(Sketcher.Constraint("Horizontal", 15))
sketch3.addConstraint(Sketcher.Constraint("Horizontal", 17))
sketch3.addConstraint(Sketcher.Constraint("Horizontal", 19))
sketch3.addConstraint(Sketcher.Constraint("Horizontal", 21))
sketch3.addConstraint(Sketcher.Constraint("Horizontal", 23))
sketch3.addConstraint(Sketcher.Constraint("Horizontal", 25))
sketch3.addConstraint(Sketcher.Constraint("Horizontal", 27))
sketch3.addConstraint(Sketcher.Constraint("Equal", 2, 4))
sketch3.addConstraint(Sketcher.Constraint("Equal", 6, 8))
sketch3.addConstraint(Sketcher.Constraint("Equal", 10, 12))
sketch3.addConstraint(Sketcher.Constraint("Equal", 14, 16))
sketch3.addConstraint(Sketcher.Constraint("Equal", 18, 20))
sketch3.addConstraint(Sketcher.Constraint("Equal", 22, 24))
sketch3.addConstraint(Sketcher.Constraint("Symmetric", 16, 3, 18, 3, -1, 1))
sketch3.addConstraint(Sketcher.Constraint("Symmetric", 14, 3, 20, 3, -1, 1))
sketch3.addConstraint(Sketcher.Constraint("Symmetric", 10, 3, 24, 3, -1, 1))
sketch3.addConstraint(Sketcher.Constraint("PointOnObject", 28, 3, -2))
sketch3.addConstraint(Sketcher.Constraint("Vertical", 0, 3, 4, 3))
sketch3.addConstraint(Sketcher.Constraint("Vertical", 2, 3, 6, 3))
sketch3.addConstraint(Sketcher.Constraint("Vertical", 4, 3, 8, 3))
sketch3.addConstraint(Sketcher.Constraint("Vertical", 6, 3, 10, 3))
sketch3.addConstraint(Sketcher.Constraint("Vertical", 8, 3, 12, 3))
sketch3.addConstraint(Sketcher.Constraint("Vertical", 10, 3, 14, 3))
sketch3.addConstraint(Sketcher.Constraint("Vertical", 12, 3, 16, 3))
sketch3.addConstraint(Sketcher.Constraint("Vertical", 14, 3, 18, 3))
sketch3.addConstraint(Sketcher.Constraint("Vertical", 18, 3, 22, 3))
sketch3.addConstraint(Sketcher.Constraint("Vertical", 22, 3, 26, 3))
sketch3.addConstraint(Sketcher.Constraint("Diameter", 28, 5.0))
sketch3.addConstraint(Sketcher.Constraint("Radius", 0, 1.0))
sketch3.addConstraint(Sketcher.Constraint("DistanceX", 1, 1, 1, 2, 12.0))
sketch3.addConstraint(Sketcher.Constraint("DistanceY", 0, 3, -1, 1, 22.0))
sketch3.addConstraint(Sketcher.Constraint("DistanceY", 8, 3, -1, 1, 11.0))
sketch3.addConstraint(Sketcher.Constraint("DistanceY", 28, 3, -1, 1, 28.0))
sketch3.addConstraint(Sketcher.Constraint("DistanceY", 4, 3, 12, 3, 11.0))
sketch3.addConstraint(Sketcher.Constraint("DistanceY", 12, 3, 20, 3, 11.0))
pocket1 = doc.addObject("PartDesign::Pocket", "Pocket")
body2.addObject(pocket1)
pocket1.Profile = sketch3
pocket1.Length = 25
pocket1.Reversed = True
body3 = doc.addObject("PartDesign::Body", "Body002")

# Sketch on XY plane
sketch4 = doc.addObject("Sketcher::SketchObject", "Sketch003")
body3.addObject(sketch4)
sketch4.AttachmentSupport = (doc.getObject("XY_Plane002"), [""])
sketch4.MapMode = "FlatFace"
add_polygon(sketch4, [(1.25, 25), (1.25, 0), (2.75, 0), (2.75, 25)])  # lines 0-3
sketch4.addConstraint(Sketcher.Constraint("Vertical", 0))
sketch4.addConstraint(Sketcher.Constraint("Horizontal", 1))
sketch4.addConstraint(Sketcher.Constraint("Vertical", 2))
sketch4.addConstraint(Sketcher.Constraint("Horizontal", 3))
sketch4.addConstraint(Sketcher.Constraint("PointOnObject", 0, 2, -1))
sketch4.addConstraint(Sketcher.Constraint("DistanceY", 0, 2, 0, 1, 25.0))
sketch4.addConstraint(Sketcher.Constraint("DistanceX", 1, 1, 1, 2, 1.5))
sketch4.addConstraint(Sketcher.Constraint("DistanceX", -1, 1, 0, 2, 1.25))
revolution = doc.addObject("PartDesign::Revolution", "Revolution")
body3.addObject(revolution)
revolution.Profile = sketch4
revolution.ReferenceAxis = (sketch4, ["V_Axis"])
revolution.Angle = 360
body4 = doc.addObject("PartDesign::Body", "Body003")

# Sketch on XY plane
sketch5 = doc.addObject("Sketcher::SketchObject", "Sketch004")
body4.addObject(sketch5)
sketch5.AttachmentSupport = (doc.getObject("XY_Plane003"), [""])
sketch5.MapMode = "FlatFace"
sketch5.addGeometry(Part.Circle(Vector(0, 0, 0), Vector(0, 0, 1), 2.75), False)
sketch5.addGeometry(Part.Circle(Vector(0, 0, 0), Vector(0, 0, 1), 1.5), False)
sketch5.addConstraint(Sketcher.Constraint("Coincident", 0, 3, -1, 1))
sketch5.addConstraint(Sketcher.Constraint("Coincident", 1, 3, -1, 1))
sketch5.addConstraint(Sketcher.Constraint("Diameter", 1, 3.0))
sketch5.addConstraint(Sketcher.Constraint("Diameter", 0, 5.5))
pad3 = doc.addObject("PartDesign::Pad", "Pad002")
body4.addObject(pad3)
pad3.Profile = sketch5
pad3.Length = 4
body5 = doc.addObject("PartDesign::Body", "Body004")

# Sketch on XY plane
sketch6 = doc.addObject("Sketcher::SketchObject", "Sketch005")
body5.addObject(sketch6)
sketch6.AttachmentSupport = (doc.getObject("XY_Plane004"), [""])
sketch6.MapMode = "FlatFace"
sketch6.addGeometry(Part.Circle(Vector(0, 0, 0), Vector(0, 0, 1), 4), False)
sketch6.addGeometry(Part.Circle(Vector(0, 0, 0), Vector(0, 0, 1), 1.65), False)
sketch6.addConstraint(Sketcher.Constraint("Coincident", 0, 3, -1, 1))
sketch6.addConstraint(Sketcher.Constraint("Coincident", 1, 3, -1, 1))
sketch6.addConstraint(Sketcher.Constraint("Diameter", 0, 8.0))
sketch6.addConstraint(Sketcher.Constraint("Diameter", 1, 3.3))
pad4 = doc.addObject("PartDesign::Pad", "Pad003")
body5.addObject(pad4)
pad4.Profile = sketch6
pad4.Length = 1.5

doc.recompute()
